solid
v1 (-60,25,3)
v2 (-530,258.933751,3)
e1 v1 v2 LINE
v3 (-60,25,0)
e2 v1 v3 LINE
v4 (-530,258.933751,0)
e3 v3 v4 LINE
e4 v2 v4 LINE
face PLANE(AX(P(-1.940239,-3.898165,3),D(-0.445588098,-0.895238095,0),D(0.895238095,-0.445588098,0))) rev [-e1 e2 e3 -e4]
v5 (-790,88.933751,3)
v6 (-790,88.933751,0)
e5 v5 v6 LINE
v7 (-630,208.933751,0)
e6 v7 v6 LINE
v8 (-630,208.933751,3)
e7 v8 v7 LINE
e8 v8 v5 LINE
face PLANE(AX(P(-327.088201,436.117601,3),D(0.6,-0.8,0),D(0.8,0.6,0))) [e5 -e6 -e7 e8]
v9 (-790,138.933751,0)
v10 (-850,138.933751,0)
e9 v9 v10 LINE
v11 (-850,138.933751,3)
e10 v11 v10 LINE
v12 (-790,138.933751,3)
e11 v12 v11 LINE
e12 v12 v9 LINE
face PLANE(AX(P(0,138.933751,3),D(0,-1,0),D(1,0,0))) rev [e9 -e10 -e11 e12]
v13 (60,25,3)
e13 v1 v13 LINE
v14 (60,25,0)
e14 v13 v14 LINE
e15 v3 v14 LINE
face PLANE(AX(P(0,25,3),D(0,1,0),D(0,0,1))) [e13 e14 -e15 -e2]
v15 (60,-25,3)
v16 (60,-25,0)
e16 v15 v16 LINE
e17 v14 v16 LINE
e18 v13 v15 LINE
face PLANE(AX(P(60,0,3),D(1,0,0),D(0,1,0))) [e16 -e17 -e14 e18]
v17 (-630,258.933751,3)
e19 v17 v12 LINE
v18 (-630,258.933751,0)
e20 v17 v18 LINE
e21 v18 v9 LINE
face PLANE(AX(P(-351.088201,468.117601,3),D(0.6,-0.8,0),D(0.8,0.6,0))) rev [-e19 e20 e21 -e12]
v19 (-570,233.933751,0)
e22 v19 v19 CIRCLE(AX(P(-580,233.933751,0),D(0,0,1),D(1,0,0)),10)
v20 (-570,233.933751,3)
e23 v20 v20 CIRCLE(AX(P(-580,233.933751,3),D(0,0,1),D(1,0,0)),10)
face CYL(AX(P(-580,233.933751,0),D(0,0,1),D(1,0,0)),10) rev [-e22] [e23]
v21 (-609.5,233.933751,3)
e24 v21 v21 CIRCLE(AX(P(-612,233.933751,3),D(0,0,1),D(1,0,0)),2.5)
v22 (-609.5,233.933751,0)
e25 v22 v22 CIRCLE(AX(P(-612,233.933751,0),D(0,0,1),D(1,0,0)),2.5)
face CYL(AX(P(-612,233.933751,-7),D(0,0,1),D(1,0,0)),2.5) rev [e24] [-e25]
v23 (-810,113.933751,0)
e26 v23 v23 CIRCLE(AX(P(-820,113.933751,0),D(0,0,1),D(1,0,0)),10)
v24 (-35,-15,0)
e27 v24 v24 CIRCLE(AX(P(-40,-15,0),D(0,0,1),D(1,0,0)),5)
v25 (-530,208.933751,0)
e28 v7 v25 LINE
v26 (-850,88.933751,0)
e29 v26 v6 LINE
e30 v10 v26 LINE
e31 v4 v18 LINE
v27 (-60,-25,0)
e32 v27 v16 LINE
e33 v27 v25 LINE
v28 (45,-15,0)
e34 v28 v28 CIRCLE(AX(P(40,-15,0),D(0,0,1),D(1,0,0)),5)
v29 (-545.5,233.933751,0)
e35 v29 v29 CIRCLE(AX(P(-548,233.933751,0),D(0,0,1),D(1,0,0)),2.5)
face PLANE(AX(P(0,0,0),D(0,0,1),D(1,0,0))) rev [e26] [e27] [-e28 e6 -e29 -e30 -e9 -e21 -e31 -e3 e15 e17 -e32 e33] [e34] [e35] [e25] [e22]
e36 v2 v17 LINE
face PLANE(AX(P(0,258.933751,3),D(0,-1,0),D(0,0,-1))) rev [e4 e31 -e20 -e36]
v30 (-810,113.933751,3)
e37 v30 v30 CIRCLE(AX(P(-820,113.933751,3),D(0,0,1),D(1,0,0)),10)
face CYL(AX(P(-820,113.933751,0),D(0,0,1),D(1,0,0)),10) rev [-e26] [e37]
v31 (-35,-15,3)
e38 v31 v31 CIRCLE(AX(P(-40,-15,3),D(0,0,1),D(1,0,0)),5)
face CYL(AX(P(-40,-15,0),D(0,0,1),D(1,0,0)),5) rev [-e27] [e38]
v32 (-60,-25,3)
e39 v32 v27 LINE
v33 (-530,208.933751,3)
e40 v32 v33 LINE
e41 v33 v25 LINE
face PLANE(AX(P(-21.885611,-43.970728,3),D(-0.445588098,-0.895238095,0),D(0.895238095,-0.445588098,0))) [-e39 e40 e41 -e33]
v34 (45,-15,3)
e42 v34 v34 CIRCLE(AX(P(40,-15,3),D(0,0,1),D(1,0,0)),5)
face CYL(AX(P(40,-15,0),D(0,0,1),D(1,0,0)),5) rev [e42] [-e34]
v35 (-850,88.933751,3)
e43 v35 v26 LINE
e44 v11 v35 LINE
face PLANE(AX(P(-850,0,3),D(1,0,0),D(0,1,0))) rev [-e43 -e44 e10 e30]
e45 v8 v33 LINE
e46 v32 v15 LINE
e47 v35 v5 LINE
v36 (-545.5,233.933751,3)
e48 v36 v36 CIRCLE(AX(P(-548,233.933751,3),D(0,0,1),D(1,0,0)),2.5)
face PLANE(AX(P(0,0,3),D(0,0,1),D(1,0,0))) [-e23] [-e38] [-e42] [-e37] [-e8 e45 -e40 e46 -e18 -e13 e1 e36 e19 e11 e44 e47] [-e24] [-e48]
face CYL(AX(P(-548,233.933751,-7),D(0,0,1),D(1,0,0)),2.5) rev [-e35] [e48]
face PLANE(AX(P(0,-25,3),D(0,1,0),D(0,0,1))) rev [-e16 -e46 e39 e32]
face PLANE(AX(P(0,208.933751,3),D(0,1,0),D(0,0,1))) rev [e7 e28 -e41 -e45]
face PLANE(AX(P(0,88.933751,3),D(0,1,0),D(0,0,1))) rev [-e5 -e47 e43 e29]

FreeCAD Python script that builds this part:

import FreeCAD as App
import Part
import Sketcher

V = App.Vector
Q = App.Units.Quantity

doc = App.newDocument("Part")
body = doc.addObject("PartDesign::Body", "Body")

# Sketch on XY plane
sketch1 = body.newObject("Sketcher::SketchObject", "Sketch")
sketch1.AttachmentSupport = (doc.getObject("XY_Plane"), [""])
sketch1.MapMode = "FlatFace"
sketch1.addGeometry(Part.LineSegment(V(-630, 258.933751, 0), V(-790, 138.933751, 0)), False)
sketch1.addGeometry(Part.LineSegment(V(-790, 138.933751, 0), V(-850, 138.933751, 0)), False)
sketch1.addGeometry(Part.LineSegment(V(-850, 138.933751, 0), V(-850, 88.933751, 0)), False)
sketch1.addGeometry(Part.LineSegment(V(-850, 88.933751, 0), V(-790, 88.933751, 0)), False)
sketch1.addGeometry(Part.LineSegment(V(-790, 88.933751, 0), V(-630, 208.933751, 0)), False)
sketch1.addGeometry(Part.LineSegment(V(-630, 208.933751, 0), V(-530, 208.933751, 0)), False)
sketch1.addGeometry(Part.LineSegment(V(-530, 208.933751, 0), V(-60, -25, 0)), False)
sketch1.addGeometry(Part.LineSegment(V(-60, -25, 0), V(60, -25, 0)), False)
sketch1.addGeometry(Part.LineSegment(V(60, -25, 0), V(60, 25, 0)), False)
sketch1.addGeometry(Part.LineSegment(V(60, 25, 0), V(-60, 25, 0)), False)
sketch1.addGeometry(Part.LineSegment(V(-60, 25, 0), V(-530, 258.933751, 0)), False)
sketch1.addGeometry(Part.LineSegment(V(-530, 258.933751, 0), V(-630, 258.933751, 0)), False)
sketch1.addConstraint(Sketcher.Constraint("Coincident", 0, 2, 1, 1))
sketch1.addConstraint(Sketcher.Constraint("Coincident", 1, 2, 2, 1))
sketch1.addConstraint(Sketcher.Constraint("Coincident", 2, 2, 3, 1))
sketch1.addConstraint(Sketcher.Constraint("Coincident", 3, 2, 4, 1))
sketch1.addConstraint(Sketcher.Constraint("Coincident", 4, 2, 5, 1))
sketch1.addConstraint(Sketcher.Constraint("Coincident", 5, 2, 6, 1))
sketch1.addConstraint(Sketcher.Constraint("Coincident", 6, 2, 7, 1))
sketch1.addConstraint(Sketcher.Constraint("Coincident", 7, 2, 8, 1))
sketch1.addConstraint(Sketcher.Constraint("Coincident", 8, 2, 9, 1))
sketch1.addConstraint(Sketcher.Constraint("Coincident", 9, 2, 10, 1))
sketch1.addConstraint(Sketcher.Constraint("Coincident", 10, 2, 11, 1))
sketch1.addConstraint(Sketcher.Constraint("Coincident", 11, 2, 0, 1))
sketch1.addConstraint(Sketcher.Constraint("Horizontal", 1))
sketch1.addConstraint(Sketcher.Constraint("Vertical", 2))
sketch1.addConstraint(Sketcher.Constraint("Horizontal", 3))
sketch1.addConstraint(Sketcher.Constraint("Horizontal", 5))
sketch1.addConstraint(Sketcher.Constraint("Horizontal", 7))
sketch1.addConstraint(Sketcher.Constraint("Vertical", 8))
sketch1.addConstraint(Sketcher.Constraint("Horizontal", 9))
sketch1.addConstraint(Sketcher.Constraint("Horizontal", 11))
sketch1.addConstraint(Sketcher.Constraint("Symmetric", 6, 2, 8, 2, -1, 1))
sketch1.addConstraint(Sketcher.Constraint("Parallel", 0, 4))
sketch1.addConstraint(Sketcher.Constraint("Parallel", 6, 10))
sketch1.addConstraint(Sketcher.Constraint("Vertical", 0, 2, 3, 2))
sketch1.addConstraint(Sketcher.Constraint("Vertical", 6, 2, 9, 2))
sketch1.addConstraint(Sketcher.Constraint("Vertical", 5, 2, 10, 2))
sketch1.addConstraint(Sketcher.Constraint("Vertical", 4, 2, 11, 2))
sketch1.addConstraint(Sketcher.Constraint("DistanceX", 1, 2, 1, 1, Q("60 mm")))
sketch1.addConstraint(Sketcher.Constraint("DistanceX", 5, 1, 5, 2, Q("100 mm")))
sketch1.addConstraint(Sketcher.Constraint("DistanceX", 7, 1, 7, 2, Q("120 mm")))
sketch1.addConstraint(Sketcher.Constraint("DistanceY", 2, 2, 2, 1, Q("50 mm")))
sketch1.addConstraint(Sketcher.Constraint("Distance", 0, Q("200 mm")))
sketch1.addConstraint(Sketcher.Constraint("Distance", 6, Q("525 mm")))
sketch1.addConstraint(Sketcher.Constraint("DistanceX", 0, 2, -1, 1, Q("790 mm")))
sketch1.addConstraint(Sketcher.Constraint("DistanceX", 4, 2, -1, 1, Q("630 mm")))
pad1 = body.newObject("PartDesign::Pad", "Pad")
pad1.Profile = sketch1
pad1.Length = 3

# Sketch on XY plane
sketch2 = body.newObject("Sketcher::SketchObject", "Sketch001")
sketch2.AttachmentSupport = (doc.getObject("XY_Plane"), [""])
sketch2.MapMode = "FlatFace"
sketch2.AttachmentOffset = App.Placement(V(0, 0, 3), App.Rotation())
sketch2.addGeometry(Part.Circle(V(-580, 233.933751, 0), V(0, 0, 1), 10), False)
sketch2.addGeometry(Part.Circle(V(-820, 113.933751, 0), V(0, 0, 1), 10), False)
sketch2.addGeometry(Part.Circle(V(40, -15, 0), V(0, 0, 1), 5), False)
sketch2.addGeometry(Part.Circle(V(-40, -15, 0), V(0, 0, 1), 5), False)
sketch2.addConstraint(Sketcher.Constraint("Equal", 0, 1))
sketch2.addConstraint(Sketcher.Constraint("Equal", 2, 3))
sketch2.addConstraint(Sketcher.Constraint("Symmetric", 2, 3, 3, 3, -2))
sketch2.addConstraint(Sketcher.Constraint("Diameter", 0, Q("20 mm")))
sketch2.addConstraint(Sketcher.Constraint("Diameter", 2, Q("10 mm")))
sketch2.addConstraint(Sketcher.Constraint("DistanceX", 0, 3, -1, 1, Q("580 mm")))
sketch2.addConstraint(Sketcher.Constraint("DistanceX", 1, 3, -1, 1, Q("820 mm")))
sketch2.addConstraint(Sketcher.Constraint("DistanceX", -1, 1, 2, 3, Q("40 mm")))
sketch2.addConstraint(Sketcher.Constraint("DistanceY", 2, 3, -1, 1, Q("15 mm")))
sketch2.addConstraint(Sketcher.Constraint("DistanceY", 1, 3, 0, 3, Q("120 mm")))
sketch2.addConstraint(Sketcher.Constraint("DistanceY", -1, 1, 0, 3, Q("233.933751 mm")))
pocket1 = body.newObject("PartDesign::Pocket", "Pocket")
pocket1.Profile = sketch2
pocket1.Type = "ThroughAll"

# Sketch on XY plane
sketch3 = body.newObject("Sketcher::SketchObject", "Sketch002")
sketch3.AttachmentSupport = (doc.getObject("XY_Plane"), [""])
sketch3.MapMode = "FlatFace"
sketch3.AttachmentOffset = App.Placement(V(0, 0, 3), App.Rotation())
sketch3.addGeometry(Part.Circle(V(-548, 233.933751, 0), V(0, 0, 1), 2.5), False)
sketch3.addGeometry(Part.Circle(V(-612, 233.933751, 0), V(0, 0, 1), 2.5), False)
sketch3.addConstraint(Sketcher.Constraint("Equal", 0, 1))
sketch3.addConstraint(Sketcher.Constraint("Horizontal", 0, 3, 1, 3))
sketch3.addConstraint(Sketcher.Constraint("Diameter", 0, Q("5 mm")))
sketch3.addConstraint(Sketcher.Constraint("DistanceX", 0, 3, -1, 1, Q("548 mm")))
sketch3.addConstraint(Sketcher.Constraint("DistanceX", 1, 3, -1, 1, Q("612 mm")))
sketch3.addConstraint(Sketcher.Constraint("DistanceY", -1, 1, 0, 3, Q("233.933751 mm")))
pocket2 = body.newObject("PartDesign::Pocket", "Pocket001")
pocket2.Profile = sketch3
pocket2.Length = 10

doc.recompute()
